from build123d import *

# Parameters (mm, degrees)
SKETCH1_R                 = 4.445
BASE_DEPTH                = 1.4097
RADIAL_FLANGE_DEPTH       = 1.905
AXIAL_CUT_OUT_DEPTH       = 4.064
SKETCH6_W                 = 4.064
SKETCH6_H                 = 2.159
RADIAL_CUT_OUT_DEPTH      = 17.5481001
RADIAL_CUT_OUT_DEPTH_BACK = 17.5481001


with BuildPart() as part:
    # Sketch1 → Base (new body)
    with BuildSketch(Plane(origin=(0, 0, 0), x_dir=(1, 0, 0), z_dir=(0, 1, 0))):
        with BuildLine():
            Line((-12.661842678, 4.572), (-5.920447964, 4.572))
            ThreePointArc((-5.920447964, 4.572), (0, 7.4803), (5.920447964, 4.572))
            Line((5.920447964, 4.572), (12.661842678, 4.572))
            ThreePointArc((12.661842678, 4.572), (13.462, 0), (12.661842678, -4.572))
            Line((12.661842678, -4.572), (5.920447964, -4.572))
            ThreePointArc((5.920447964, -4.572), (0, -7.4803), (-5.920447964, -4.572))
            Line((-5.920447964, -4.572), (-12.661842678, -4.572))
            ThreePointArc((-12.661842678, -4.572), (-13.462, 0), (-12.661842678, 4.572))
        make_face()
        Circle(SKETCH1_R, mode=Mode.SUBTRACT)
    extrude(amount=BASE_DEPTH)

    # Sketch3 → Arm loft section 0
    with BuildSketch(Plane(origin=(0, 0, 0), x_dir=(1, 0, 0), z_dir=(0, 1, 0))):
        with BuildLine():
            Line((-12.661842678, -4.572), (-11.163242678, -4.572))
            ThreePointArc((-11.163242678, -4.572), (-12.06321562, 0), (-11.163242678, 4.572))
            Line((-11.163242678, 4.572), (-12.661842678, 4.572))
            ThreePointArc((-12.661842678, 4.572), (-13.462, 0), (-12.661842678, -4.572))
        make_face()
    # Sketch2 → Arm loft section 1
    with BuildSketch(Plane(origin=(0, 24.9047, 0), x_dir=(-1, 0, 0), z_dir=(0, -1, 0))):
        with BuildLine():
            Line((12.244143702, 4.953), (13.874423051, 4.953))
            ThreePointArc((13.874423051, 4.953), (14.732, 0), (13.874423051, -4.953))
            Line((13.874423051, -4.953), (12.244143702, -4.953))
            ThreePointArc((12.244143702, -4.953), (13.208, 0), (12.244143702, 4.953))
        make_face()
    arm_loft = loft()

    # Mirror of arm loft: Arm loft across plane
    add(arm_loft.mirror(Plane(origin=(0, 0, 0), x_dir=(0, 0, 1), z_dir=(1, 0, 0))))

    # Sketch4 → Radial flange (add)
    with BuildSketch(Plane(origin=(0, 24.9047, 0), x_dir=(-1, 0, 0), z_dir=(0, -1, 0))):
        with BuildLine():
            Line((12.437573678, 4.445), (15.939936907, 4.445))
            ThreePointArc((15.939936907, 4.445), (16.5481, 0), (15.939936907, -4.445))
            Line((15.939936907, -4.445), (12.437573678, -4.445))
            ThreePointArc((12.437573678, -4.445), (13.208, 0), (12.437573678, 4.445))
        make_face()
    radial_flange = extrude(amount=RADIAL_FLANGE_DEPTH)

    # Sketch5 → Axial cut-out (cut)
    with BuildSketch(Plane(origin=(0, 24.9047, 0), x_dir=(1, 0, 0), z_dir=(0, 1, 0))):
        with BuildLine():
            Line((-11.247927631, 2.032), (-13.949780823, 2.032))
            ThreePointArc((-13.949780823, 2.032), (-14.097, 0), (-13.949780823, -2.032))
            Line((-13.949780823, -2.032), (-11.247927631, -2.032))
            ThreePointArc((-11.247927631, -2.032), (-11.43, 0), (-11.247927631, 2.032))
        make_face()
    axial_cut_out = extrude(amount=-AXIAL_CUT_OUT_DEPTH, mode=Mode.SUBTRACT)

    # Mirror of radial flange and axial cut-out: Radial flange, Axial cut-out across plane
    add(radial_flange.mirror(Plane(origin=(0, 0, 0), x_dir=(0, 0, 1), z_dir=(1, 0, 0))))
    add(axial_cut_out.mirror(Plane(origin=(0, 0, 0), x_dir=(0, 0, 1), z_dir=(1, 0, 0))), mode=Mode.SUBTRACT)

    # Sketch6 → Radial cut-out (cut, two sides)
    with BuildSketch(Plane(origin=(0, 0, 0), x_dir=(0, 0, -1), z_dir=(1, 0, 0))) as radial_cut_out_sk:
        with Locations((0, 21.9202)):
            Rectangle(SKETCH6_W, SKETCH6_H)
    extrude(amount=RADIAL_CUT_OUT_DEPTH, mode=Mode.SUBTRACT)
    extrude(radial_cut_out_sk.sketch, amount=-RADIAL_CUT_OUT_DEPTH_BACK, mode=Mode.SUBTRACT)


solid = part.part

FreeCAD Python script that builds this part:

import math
import FreeCAD as App
import Part
import Sketcher
Q = App.Units.Quantity


def add_polygon(sketch, points):
    """Adds a closed chain of lines whose ends are joined by coincident constraints."""
    first, n = sketch.GeometryCount, len(points)
    for a, b in zip(points, points[1:] + points[:1]):
        sketch.addGeometry(Part.LineSegment(App.Vector(*a, 0), App.Vector(*b, 0)), False)
    for i in range(n):
        sketch.addConstraint(Sketcher.Constraint("Coincident", first + i, 2, first + (i + 1) % n, 1))

doc = App.newDocument("Part")
params = doc.addObject("Spreadsheet::Sheet", "Params")
for row, (alias, value) in enumerate([
    ("sketch1_diameter", "0.35 in"),
    ("sketch1_radius", "0.53 in"),
    ("pad1_length", "0.0555 in"),
    ("sketch2_radius", "0.53 in"),
    ("sketch2_width", "0.059 in"),
    ("sketch3_radius", "0.52 in"),
    ("sketch3_radius2", "0.58 in"),
    ("sketch4_radius", "0.52 in"),
    ("pad2_length", "0.075 in"),
    ("sketch5_radius", "0.45 in"),
    ("sketch5_radius2", "0.555 in"),
    ("pocket1_length", "0.16 in"),
    ("sketch6_height", "0.16 in"),
    ("sketch6_width", "0.085 in"),
], start=1):
    params.set(f"A{row}", alias)
    params.set(f"B{row}", "=" + value)
    params.setAlias(f"B{row}", alias)

body = doc.addObject("PartDesign::Body", "Body")

sketch1 = body.newObject("Sketcher::SketchObject", "Sketch")
sketch1.AttachmentSupport = (doc.getObject("XZ_Plane"), [""])
sketch1.MapMode = "FlatFace"
sketch1.addGeometry(Part.LineSegment(App.Vector(-5.9, -4.6, 0), App.Vector(-12.7, -4.6, 0)), False)
sketch1.addGeometry(Part.ArcOfCircle(Part.Circle(App.Vector(0, 0, 0), App.Vector(0, 0, 1), 13.5), math.radians(160), math.radians(200)), False)
sketch1.addGeometry(Part.LineSegment(App.Vector(-12.7, 4.6, 0), App.Vector(-5.9, 4.6, 0)), False)
sketch1.addGeometry(Part.ArcOfCircle(Part.Circle(App.Vector(0, 0, 0), App.Vector(0, 0, 1), 7.5), math.radians(38), math.radians(142)), False)
sketch1.addGeometry(Part.LineSegment(App.Vector(5.9, 4.6, 0), App.Vector(12.7, 4.6, 0)), False)
sketch1.addGeometry(Part.ArcOfCircle(Part.Circle(App.Vector(0, 0, 0), App.Vector(0, 0, 1), 13.5), math.radians(-20), math.radians(20)), False)
sketch1.addGeometry(Part.LineSegment(App.Vector(12.7, -4.6, 0), App.Vector(5.9, -4.6, 0)), False)
sketch1.addGeometry(Part.ArcOfCircle(Part.Circle(App.Vector(0, 0, 0), App.Vector(0, 0, 1), 7.5), math.radians(-142), math.radians(-38)), False)
sketch1.addGeometry(Part.Circle(App.Vector(0, 0, 0), App.Vector(0, 0, 1), 4.4), False)
sketch1.addConstraint(Sketcher.Constraint("Coincident", 0, 2, 1, 2))
sketch1.addConstraint(Sketcher.Constraint("Coincident", 1, 1, 2, 1))
sketch1.addConstraint(Sketcher.Constraint("Coincident", 2, 2, 3, 2))
sketch1.addConstraint(Sketcher.Constraint("Coincident", 3, 1, 4, 1))
sketch1.addConstraint(Sketcher.Constraint("Coincident", 4, 2, 5, 2))
sketch1.addConstraint(Sketcher.Constraint("Coincident", 5, 1, 6, 1))
sketch1.addConstraint(Sketcher.Constraint("Coincident", 6, 2, 7, 2))
sketch1.addConstraint(Sketcher.Constraint("Coincident", 7, 1, 0, 1))
sketch1.addConstraint(Sketcher.Constraint("Horizontal", 0))
sketch1.addConstraint(Sketcher.Constraint("Horizontal", 2))
sketch1.addConstraint(Sketcher.Constraint("Horizontal", 4))
sketch1.addConstraint(Sketcher.Constraint("Horizontal", 6))
sketch1.addConstraint(Sketcher.Constraint("Coincident", 1, 3, -1, 1))
sketch1.addConstraint(Sketcher.Constraint("Coincident", 3, 3, -1, 1))
sketch1.addConstraint(Sketcher.Constraint("Coincident", 5, 3, -1, 1))
sketch1.addConstraint(Sketcher.Constraint("Coincident", 7, 3, -1, 1))
sketch1.addConstraint(Sketcher.Constraint("Coincident", 8, 3, -1, 1))
sketch1.addConstraint(Sketcher.Constraint("Equal", 1, 5))
sketch1.addConstraint(Sketcher.Constraint("Equal", 3, 7))
sketch1.addConstraint(Sketcher.Constraint("Horizontal", 2, 2, 3, 1))
sketch1.addConstraint(Sketcher.Constraint("Horizontal", 0, 2, 5, 1))
sketch1.addConstraint(Sketcher.Constraint("Vertical", 0, 2, 1, 1))
sketch1.addConstraint(Sketcher.Constraint("Diameter", 8, Q("0.35 in")))
sketch1.addConstraint(Sketcher.Constraint("Radius", 1, Q("0.53 in")))
sketch1.addConstraint(Sketcher.Constraint("Radius", 3, Q("0.2945 in")))
sketch1.addConstraint(Sketcher.Constraint("DistanceY", 0, 2, -1, 1, Q("0.18 in")))
sketch1.setExpression("Constraints[22]", "Params.sketch1_diameter")
sketch1.setExpression("Constraints[23]", "Params.sketch1_radius")
pad1 = body.newObject("PartDesign::Pad", "Pad")
pad1.Profile = sketch1
pad1.setExpression("Length", "Params.pad1_length")
pad1.Reversed = True

sketch2 = body.newObject("Sketcher::SketchObject", "Sketch001")
sketch2.AttachmentSupport = (doc.getObject("XZ_Plane"), [""])
sketch2.MapMode = "FlatFace"
sketch2.addGeometry(Part.LineSegment(App.Vector(-12.7, 4.6, 0), App.Vector(-11.2, 4.6, 0)), False)
sketch2.addGeometry(Part.ArcOfCircle(Part.Circle(App.Vector(0, 0, 0), App.Vector(0, 0, 1), 12.1), math.radians(158), math.radians(202)), False)
sketch2.addGeometry(Part.LineSegment(App.Vector(-11.2, -4.6, 0), App.Vector(-12.7, -4.6, 0)), False)
sketch2.addGeometry(Part.ArcOfCircle(Part.Circle(App.Vector(0, 0, 0), App.Vector(0, 0, 1), 13.5), math.radians(160), math.radians(200)), False)
sketch2.addConstraint(Sketcher.Constraint("Coincident", 0, 2, 1, 1))
sketch2.addConstraint(Sketcher.Constraint("Coincident", 1, 2, 2, 1))
sketch2.addConstraint(Sketcher.Constraint("Coincident", 2, 2, 3, 2))
sketch2.addConstraint(Sketcher.Constraint("Coincident", 3, 1, 0, 1))
sketch2.addConstraint(Sketcher.Constraint("Horizontal", 0))
sketch2.addConstraint(Sketcher.Constraint("Horizontal", 2))
sketch2.addConstraint(Sketcher.Constraint("Coincident", 1, 3, -1, 1))
sketch2.addConstraint(Sketcher.Constraint("Coincident", 3, 3, -1, 1))
sketch2.addConstraint(Sketcher.Constraint("Vertical", 0, 2, 1, 2))
sketch2.addConstraint(Sketcher.Constraint("Radius", 3, Q("0.53 in")))
sketch2.addConstraint(Sketcher.Constraint("DistanceX", 0, 1, 0, 2, Q("0.059 in")))
sketch2.addConstraint(Sketcher.Constraint("DistanceY", -1, 1, 0, 2, Q("0.18 in")))
sketch2.setExpression("Constraints[9]", "Params.sketch2_radius")
sketch2.setExpression("Constraints[10]", "Params.sketch2_width")

sketch3 = body.newObject("Sketcher::SketchObject", "Sketch002")
sketch3.AttachmentSupport = (doc.getObject("XZ_Plane"), [""])
sketch3.MapMode = "FlatFace"
sketch3.AttachmentOffset = App.Placement(App.Vector(0, 0, -0.9805 * 25.4), App.Rotation())
sketch3.addGeometry(Part.LineSegment(App.Vector(-13.9, -5, 0), App.Vector(-12.2, -5, 0)), False)
sketch3.addGeometry(Part.ArcOfCircle(Part.Circle(App.Vector(0, 0, 0), App.Vector(0, 0, 1), 13.2), math.radians(158), math.radians(202)), False)
sketch3.addGeometry(Part.LineSegment(App.Vector(-12.2, 5, 0), App.Vector(-13.9, 5, 0)), False)
sketch3.addGeometry(Part.ArcOfCircle(Part.Circle(App.Vector(0, 0, 0), App.Vector(0, 0, 1), 14.7), math.radians(160), math.radians(200)), False)
sketch3.addConstraint(Sketcher.Constraint("Coincident", 0, 2, 1, 2))
sketch3.addConstraint(Sketcher.Constraint("Coincident", 1, 1, 2, 1))
sketch3.addConstraint(Sketcher.Constraint("Coincident", 2, 2, 3, 1))
sketch3.addConstraint(Sketcher.Constraint("Coincident", 3, 2, 0, 1))
sketch3.addConstraint(Sketcher.Constraint("Horizontal", 0))
sketch3.addConstraint(Sketcher.Constraint("Horizontal", 2))
sketch3.addConstraint(Sketcher.Constraint("Coincident", 1, 3, -1, 1))
sketch3.addConstraint(Sketcher.Constraint("Coincident", 3, 3, -1, 1))
sketch3.addConstraint(Sketcher.Constraint("Vertical", 0, 2, 1, 1))
sketch3.addConstraint(Sketcher.Constraint("Radius", 1, Q("0.52 in")))
sketch3.addConstraint(Sketcher.Constraint("Radius", 3, Q("0.58 in")))
sketch3.addConstraint(Sketcher.Constraint("DistanceY", 0, 2, 1, 1, Q("0.39 in")))
sketch3.setExpression("Constraints[9]", "Params.sketch3_radius")
sketch3.setExpression("Constraints[10]", "Params.sketch3_radius2")

additiveloft = body.newObject("PartDesign::AdditiveLoft", "AdditiveLoft")
additiveloft.Profile = sketch2
additiveloft.Sections = [sketch3]
doc.recompute()

mirrored = body.newObject("PartDesign::Mirrored", "Mirrored")
mirrored.Originals = [additiveloft]
mirrored.MirrorPlane = (doc.getObject("YZ_Plane"), [""])
body.Tip = mirrored

sketch4 = body.newObject("Sketcher::SketchObject", "Sketch003")
sketch4.AttachmentSupport = (doc.getObject("XZ_Plane"), [""])
sketch4.MapMode = "FlatFace"
sketch4.AttachmentOffset = App.Placement(App.Vector(0, 0, -0.9805 * 25.4), App.Rotation())
sketch4.addGeometry(Part.LineSegment(App.Vector(-15.9, -4.4, 0), App.Vector(-12.4, -4.4, 0)), False)
sketch4.addGeometry(Part.ArcOfCircle(Part.Circle(App.Vector(0, 0, 0), App.Vector(0, 0, 1), 13.2), math.radians(160), math.radians(200)), False)
sketch4.addGeometry(Part.LineSegment(App.Vector(-12.4, 4.4, 0), App.Vector(-15.9, 4.4, 0)), False)
sketch4.addGeometry(Part.ArcOfCircle(Part.Circle(App.Vector(0, 0, 0), App.Vector(0, 0, 1), 16.5), math.radians(164), math.radians(196)), False)
sketch4.addConstraint(Sketcher.Constraint("Coincident", 0, 2, 1, 2))
sketch4.addConstraint(Sketcher.Constraint("Coincident", 1, 1, 2, 1))
sketch4.addConstraint(Sketcher.Constraint("Coincident", 2, 2, 3, 1))
sketch4.addConstraint(Sketcher.Constraint("Coincident", 3, 2, 0, 1))
sketch4.addConstraint(Sketcher.Constraint("Horizontal", 0))
sketch4.addConstraint(Sketcher.Constraint("Horizontal", 2))
sketch4.addConstraint(Sketcher.Constraint("Coincident", 1, 3, -1, 1))
sketch4.addConstraint(Sketcher.Constraint("Coincident", 3, 3, -1, 1))
sketch4.addConstraint(Sketcher.Constraint("Vertical", 0, 2, 1, 1))
sketch4.addConstraint(Sketcher.Constraint("Radius", 1, Q("0.52 in")))
sketch4.addConstraint(Sketcher.Constraint("Radius", 3, Q("0.6515 in")))
sketch4.addConstraint(Sketcher.Constraint("DistanceY", 0, 2, 1, 1, Q("0.35 in")))
sketch4.setExpression("Constraints[9]", "Params.sketch4_radius")
pad2 = body.newObject("PartDesign::Pad", "Pad001")
pad2.Profile = sketch4
pad2.setExpression("Length", "Params.pad2_length")

sketch5 = body.newObject("Sketcher::SketchObject", "Sketch004")
sketch5.AttachmentSupport = (doc.getObject("XZ_Plane"), [""])
sketch5.MapMode = "FlatFace"
sketch5.AttachmentOffset = App.Placement(App.Vector(0, 0, -0.9805 * 25.4), App.Rotation())
sketch5.addGeometry(Part.LineSegment(App.Vector(-11.2, -2, 0), App.Vector(-13.9, -2, 0)), False)
sketch5.addGeometry(Part.ArcOfCircle(Part.Circle(App.Vector(0, 0, 0), App.Vector(0, 0, 1), 14.1), math.radians(171.71), math.radians(188.29)), False)
sketch5.addGeometry(Part.LineSegment(App.Vector(-13.9, 2, 0), App.Vector(-11.2, 2, 0)), False)
sketch5.addGeometry(Part.ArcOfCircle(Part.Circle(App.Vector(0, 0, 0), App.Vector(0, 0, 1), 11.4), math.radians(170), math.radians(190)), False)
sketch5.addConstraint(Sketcher.Constraint("Coincident", 0, 2, 1, 2))
sketch5.addConstraint(Sketcher.Constraint("Coincident", 1, 1, 2, 1))
sketch5.addConstraint(Sketcher.Constraint("Coincident", 2, 2, 3, 1))
sketch5.addConstraint(Sketcher.Constraint("Coincident", 3, 2, 0, 1))
sketch5.addConstraint(Sketcher.Constraint("Horizontal", 0))
sketch5.addConstraint(Sketcher.Constraint("Horizontal", 2))
sketch5.addConstraint(Sketcher.Constraint("Coincident", 1, 3, -1, 1))
sketch5.addConstraint(Sketcher.Constraint("Coincident", 3, 3, -1, 1))
sketch5.addConstraint(Sketcher.Constraint("Vertical", 0, 2, 1, 1))
sketch5.addConstraint(Sketcher.Constraint("Radius", 3, Q("0.45 in")))
sketch5.addConstraint(Sketcher.Constraint("Radius", 1, Q("0.555 in")))
sketch5.addConstraint(Sketcher.Constraint("DistanceY", 0, 2, -1, 1, Q("0.08 in")))
sketch5.setExpression("Constraints[9]", "Params.sketch5_radius")
sketch5.setExpression("Constraints[10]", "Params.sketch5_radius2")
pocket1 = body.newObject("PartDesign::Pocket", "Pocket")
pocket1.Profile = sketch5
pocket1.setExpression("Length", "Params.pocket1_length")
pocket1.Reversed = True
doc.recompute()

mirrored2 = body.newObject("PartDesign::Mirrored", "Mirrored001")
mirrored2.Originals = [pad2, pocket1]
mirrored2.MirrorPlane = (doc.getObject("YZ_Plane"), [""])
body.Tip = mirrored2

sketch6 = body.newObject("Sketcher::SketchObject", "Sketch005")
sketch6.AttachmentSupport = (doc.getObject("YZ_Plane"), [""])
sketch6.MapMode = "FlatFace"
add_polygon(sketch6, [(23, 2), (20.8, 2), (20.8, -2), (23, -2)])
sketch6.addConstraint(Sketcher.Constraint("Horizontal", 0))
sketch6.addConstraint(Sketcher.Constraint("Vertical", 1))
sketch6.addConstraint(Sketcher.Constraint("Horizontal", 2))
sketch6.addConstraint(Sketcher.Constraint("Vertical", 3))
sketch6.addConstraint(Sketcher.Constraint("DistanceY", 1, 2, 1, 1, Q("0.16 in")))
sketch6.addConstraint(Sketcher.Constraint("DistanceX", 0, 2, 0, 1, Q("0.085 in")))
sketch6.addConstraint(Sketcher.Constraint("DistanceY", -1, 1, 0, 2, Q("0.08 in")))
sketch6.addConstraint(Sketcher.Constraint("DistanceX", -1, 1, 0, 2, Q("0.8205 in")))
sketch6.setExpression("Constraints[8]", "Params.sketch6_height")
sketch6.setExpression("Constraints[9]", "Params.sketch6_width")
pocket2 = body.newObject("PartDesign::Pocket", "Pocket001")
pocket2.Profile = sketch6
pocket2.Type = "ThroughAll"
pocket2.Midplane = True

doc.recompute()
